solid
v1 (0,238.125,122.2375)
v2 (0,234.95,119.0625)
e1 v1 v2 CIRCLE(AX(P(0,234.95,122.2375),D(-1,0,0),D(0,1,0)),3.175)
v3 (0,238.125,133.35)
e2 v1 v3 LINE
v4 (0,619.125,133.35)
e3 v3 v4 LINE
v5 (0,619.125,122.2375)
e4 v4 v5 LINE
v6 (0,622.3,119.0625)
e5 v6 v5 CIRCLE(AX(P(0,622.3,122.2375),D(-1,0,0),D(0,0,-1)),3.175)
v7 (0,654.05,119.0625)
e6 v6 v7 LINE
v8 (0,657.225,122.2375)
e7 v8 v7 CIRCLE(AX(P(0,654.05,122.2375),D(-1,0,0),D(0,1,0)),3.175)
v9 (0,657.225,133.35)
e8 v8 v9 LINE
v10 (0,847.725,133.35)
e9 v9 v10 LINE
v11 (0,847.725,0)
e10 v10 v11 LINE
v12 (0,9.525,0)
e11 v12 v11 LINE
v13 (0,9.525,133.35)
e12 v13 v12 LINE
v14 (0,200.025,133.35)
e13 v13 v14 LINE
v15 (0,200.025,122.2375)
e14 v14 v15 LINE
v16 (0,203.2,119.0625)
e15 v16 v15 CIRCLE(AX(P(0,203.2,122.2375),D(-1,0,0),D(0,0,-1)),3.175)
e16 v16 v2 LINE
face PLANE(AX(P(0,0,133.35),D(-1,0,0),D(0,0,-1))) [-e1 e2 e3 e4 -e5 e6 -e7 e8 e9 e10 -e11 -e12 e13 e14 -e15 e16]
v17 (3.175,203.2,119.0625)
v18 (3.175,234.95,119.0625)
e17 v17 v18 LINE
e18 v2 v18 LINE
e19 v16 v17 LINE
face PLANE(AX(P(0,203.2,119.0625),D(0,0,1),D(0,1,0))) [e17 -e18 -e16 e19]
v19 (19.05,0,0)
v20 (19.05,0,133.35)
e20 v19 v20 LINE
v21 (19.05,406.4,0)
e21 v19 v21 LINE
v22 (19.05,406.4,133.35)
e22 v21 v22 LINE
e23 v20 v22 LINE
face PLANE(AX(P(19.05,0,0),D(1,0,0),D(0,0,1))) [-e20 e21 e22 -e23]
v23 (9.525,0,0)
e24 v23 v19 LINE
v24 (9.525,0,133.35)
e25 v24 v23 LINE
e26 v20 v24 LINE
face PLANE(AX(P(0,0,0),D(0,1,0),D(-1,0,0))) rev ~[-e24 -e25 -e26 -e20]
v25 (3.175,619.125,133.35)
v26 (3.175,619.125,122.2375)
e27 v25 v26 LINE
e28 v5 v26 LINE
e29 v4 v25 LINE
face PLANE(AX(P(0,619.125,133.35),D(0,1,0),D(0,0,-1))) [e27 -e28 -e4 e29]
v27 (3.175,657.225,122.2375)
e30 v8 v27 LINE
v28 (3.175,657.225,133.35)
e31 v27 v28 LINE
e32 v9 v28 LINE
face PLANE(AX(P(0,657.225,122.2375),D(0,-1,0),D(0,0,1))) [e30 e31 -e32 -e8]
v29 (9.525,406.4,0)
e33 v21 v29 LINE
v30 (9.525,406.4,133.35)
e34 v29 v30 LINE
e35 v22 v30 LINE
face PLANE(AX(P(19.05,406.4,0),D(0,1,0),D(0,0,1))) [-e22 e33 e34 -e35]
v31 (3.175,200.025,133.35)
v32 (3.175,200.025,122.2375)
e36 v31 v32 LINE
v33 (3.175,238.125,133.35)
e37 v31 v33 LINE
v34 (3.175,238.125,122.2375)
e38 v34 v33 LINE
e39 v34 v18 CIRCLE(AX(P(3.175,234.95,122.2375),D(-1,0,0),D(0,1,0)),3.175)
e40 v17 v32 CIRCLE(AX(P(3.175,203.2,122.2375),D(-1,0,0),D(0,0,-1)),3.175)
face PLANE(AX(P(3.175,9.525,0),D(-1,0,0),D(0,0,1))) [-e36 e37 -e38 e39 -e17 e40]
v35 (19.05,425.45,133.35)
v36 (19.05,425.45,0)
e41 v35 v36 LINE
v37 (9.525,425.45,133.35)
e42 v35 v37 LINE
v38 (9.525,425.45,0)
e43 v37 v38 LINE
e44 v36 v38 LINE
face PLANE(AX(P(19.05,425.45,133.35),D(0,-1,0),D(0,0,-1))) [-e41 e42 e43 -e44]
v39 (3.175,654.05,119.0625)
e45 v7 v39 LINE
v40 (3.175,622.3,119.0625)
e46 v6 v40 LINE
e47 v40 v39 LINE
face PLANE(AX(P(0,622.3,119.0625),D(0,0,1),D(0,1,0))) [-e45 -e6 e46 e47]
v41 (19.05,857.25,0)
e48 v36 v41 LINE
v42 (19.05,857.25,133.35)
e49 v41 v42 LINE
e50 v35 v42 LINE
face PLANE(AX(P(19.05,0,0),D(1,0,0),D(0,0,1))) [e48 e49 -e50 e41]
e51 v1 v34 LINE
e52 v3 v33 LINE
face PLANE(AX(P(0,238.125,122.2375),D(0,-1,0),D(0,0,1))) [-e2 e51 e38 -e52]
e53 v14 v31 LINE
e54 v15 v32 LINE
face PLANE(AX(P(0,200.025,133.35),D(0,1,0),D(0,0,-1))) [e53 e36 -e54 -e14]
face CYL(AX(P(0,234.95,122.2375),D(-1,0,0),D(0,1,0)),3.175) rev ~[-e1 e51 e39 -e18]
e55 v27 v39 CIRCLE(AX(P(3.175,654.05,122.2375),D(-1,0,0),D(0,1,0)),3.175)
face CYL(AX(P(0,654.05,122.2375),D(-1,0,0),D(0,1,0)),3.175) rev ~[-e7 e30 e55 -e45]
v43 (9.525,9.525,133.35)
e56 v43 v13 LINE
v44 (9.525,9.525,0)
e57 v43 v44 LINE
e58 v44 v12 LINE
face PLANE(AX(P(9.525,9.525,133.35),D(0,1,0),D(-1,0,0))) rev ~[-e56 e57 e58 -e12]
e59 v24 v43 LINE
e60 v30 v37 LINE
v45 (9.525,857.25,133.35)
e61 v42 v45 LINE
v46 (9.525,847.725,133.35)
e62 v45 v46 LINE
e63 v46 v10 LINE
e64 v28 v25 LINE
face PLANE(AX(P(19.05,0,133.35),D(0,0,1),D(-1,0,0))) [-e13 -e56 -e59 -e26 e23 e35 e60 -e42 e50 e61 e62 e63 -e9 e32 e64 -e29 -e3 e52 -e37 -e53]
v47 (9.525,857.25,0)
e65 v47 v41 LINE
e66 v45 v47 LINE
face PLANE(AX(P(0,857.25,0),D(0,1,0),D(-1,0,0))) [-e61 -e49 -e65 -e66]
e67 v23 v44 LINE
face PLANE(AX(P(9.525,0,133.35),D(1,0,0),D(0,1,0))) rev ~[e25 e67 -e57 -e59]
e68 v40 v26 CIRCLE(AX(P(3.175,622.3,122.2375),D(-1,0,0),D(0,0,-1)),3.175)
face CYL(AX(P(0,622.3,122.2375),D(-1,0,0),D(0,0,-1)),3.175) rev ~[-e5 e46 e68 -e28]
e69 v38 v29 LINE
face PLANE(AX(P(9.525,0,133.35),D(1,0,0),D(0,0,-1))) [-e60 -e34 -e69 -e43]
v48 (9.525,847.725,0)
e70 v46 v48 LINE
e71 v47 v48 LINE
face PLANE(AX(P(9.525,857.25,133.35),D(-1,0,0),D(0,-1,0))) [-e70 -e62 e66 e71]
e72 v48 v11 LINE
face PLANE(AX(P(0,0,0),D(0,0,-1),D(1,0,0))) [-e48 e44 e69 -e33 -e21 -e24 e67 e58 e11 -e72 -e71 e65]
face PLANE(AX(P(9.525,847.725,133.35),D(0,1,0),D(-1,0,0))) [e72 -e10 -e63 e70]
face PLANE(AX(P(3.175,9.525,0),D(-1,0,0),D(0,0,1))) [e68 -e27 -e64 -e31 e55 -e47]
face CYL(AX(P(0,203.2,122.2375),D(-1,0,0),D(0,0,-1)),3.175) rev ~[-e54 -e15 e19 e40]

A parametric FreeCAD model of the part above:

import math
import FreeCAD as App
import Part
import Sketcher

V = App.Vector
Q = App.Units.Quantity


def add_polygon(sketch, points):
    """Adds a closed chain of lines whose ends are joined by coincident constraints."""
    first, n = sketch.GeometryCount, len(points)
    for a, b in zip(points, points[1:] + points[:1]):
        sketch.addGeometry(Part.LineSegment(App.Vector(*a, 0), App.Vector(*b, 0)), False)
    for i in range(n):
        sketch.addConstraint(Sketcher.Constraint("Coincident", first + i, 2, first + (i + 1) % n, 1))

doc = App.newDocument("Part")
params = doc.addObject("Spreadsheet::Sheet", "Params")
for row, (alias, value) in enumerate([
    ("sketch1_width", "0.75 in"),
    ("sketch1_height", "5.25 in"),
    ("pad1_length", "33.75 in"),
    ("sketch2_width", "0.75 in"),
    ("sketch2_height", "5.25 in"),
    ("pocket1_length", "0.375 in"),
    ("sketch3_width", "0.375 in"),
    ("pocket2_length", "5.25 in"),
    ("sketch4_width", "1.5 in"),
    ("sketch4_radius", "0.125 in"),
    ("pocket3_length", "0.125 in"),
], start=1):
    params.set(f"A{row}", alias)
    params.set(f"B{row}", "=" + value)
    params.setAlias(f"B{row}", alias)

body = doc.addObject("PartDesign::Body", "Body")

sketch1 = doc.addObject("Sketcher::SketchObject", "Sketch")
body.addObject(sketch1)
sketch1.AttachmentSupport = (doc.XZ_Plane, [""])
sketch1.MapMode = "FlatFace"
add_polygon(sketch1, [(19, 0), (0, 0), (0, 133), (19, 133)])
sketch1.addConstraint([
    Sketcher.Constraint("Horizontal", 0),
    Sketcher.Constraint("Vertical", 1),
    Sketcher.Constraint("Horizontal", 2),
    Sketcher.Constraint("Vertical", 3),
    Sketcher.Constraint("Coincident", 0, 2, -1, 1),
    Sketcher.Constraint("DistanceX", 0, 2, 0, 1, Q("0.75 in")),
    Sketcher.Constraint("DistanceY", 1, 1, 1, 2, Q("5.25 in")),
])
sketch1.setExpression("Constraints[9]", "Params.sketch1_width")
sketch1.setExpression("Constraints[10]", "Params.sketch1_height")
pad1 = doc.addObject("PartDesign::Pad", "Pad")
body.addObject(pad1)
pad1.Profile = sketch1
pad1.setExpression("Length", "Params.pad1_length")
pad1.Reversed = True

sketch2 = doc.addObject("Sketcher::SketchObject", "Sketch001")
body.addObject(sketch2)
sketch2.AttachmentSupport = (doc.YZ_Plane, [""])
sketch2.MapMode = "FlatFace"
sketch2.AttachmentOffset = App.Placement(V(0, 0, 0.75 * 25.4), App.Rotation())
add_polygon(sketch2, [(425, 0), (425, 133), (406, 133), (406, 0)])
sketch2.addConstraint([
    Sketcher.Constraint("Vertical", 0),
    Sketcher.Constraint("Horizontal", 1),
    Sketcher.Constraint("Vertical", 2),
    Sketcher.Constraint("Horizontal", 3),
    Sketcher.Constraint("PointOnObject", 2, 2, -1),
    Sketcher.Constraint("DistanceX", -1, 1, 1, 2, Q("16 in")),
    Sketcher.Constraint("DistanceX", 1, 2, 1, 1, Q("0.75 in")),
    Sketcher.Constraint("DistanceY", 0, 1, 0, 2, Q("5.25 in")),
])
sketch2.setExpression("Constraints[10]", "Params.sketch2_width")
sketch2.setExpression("Constraints[11]", "Params.sketch2_height")
pocket1 = doc.addObject("PartDesign::Pocket", "Pocket")
body.addObject(pocket1)
pocket1.Profile = sketch2
pocket1.setExpression("Length", "Params.pocket1_length")

sketch3 = doc.addObject("Sketcher::SketchObject", "Sketch002")
body.addObject(sketch3)
sketch3.AttachmentSupport = (doc.XY_Plane, [""])
sketch3.MapMode = "FlatFace"
sketch3.AttachmentOffset = App.Placement(V(0, 0, 5.25 * 25.4), App.Rotation())
add_polygon(sketch3, [(10, 857), (0, 857), (0, 848), (10, 848)])
add_polygon(sketch3, [(0, 10), (0, 0), (10, 0), (10, 10)])
sketch3.addConstraint([
    Sketcher.Constraint("Horizontal", 0),
    Sketcher.Constraint("Vertical", 1),
    Sketcher.Constraint("Horizontal", 2),
    Sketcher.Constraint("Vertical", 3),
    Sketcher.Constraint("Vertical", 4),
    Sketcher.Constraint("Horizontal", 5),
    Sketcher.Constraint("Vertical", 6),
    Sketcher.Constraint("Horizontal", 7),
    Sketcher.Constraint("Coincident", 4, 2, -1, 1),
    Sketcher.Constraint("PointOnObject", 0, 2, -2),
    Sketcher.Constraint("Vertical", 3, 2, 5, 2),
    Sketcher.Constraint("Equal", 7, 1),
    Sketcher.Constraint("Equal", 3, 4),
    Sketcher.Constraint("DistanceX", 0, 2, 0, 1, Q("0.375 in")),
    Sketcher.Constraint("DistanceY", 6, 2, 2, 2, Q("33 in")),
])
sketch3.setExpression("Constraints[21]", "Params.sketch3_width")
pocket2 = doc.addObject("PartDesign::Pocket", "Pocket001")
body.addObject(pocket2)
pocket2.Profile = sketch3
pocket2.setExpression("Length", "Params.pocket2_length")

sketch4 = doc.addObject("Sketcher::SketchObject", "Sketch003")
body.addObject(sketch4)
sketch4.AttachmentSupport = (doc.YZ_Plane, [""])
sketch4.MapMode = "FlatFace"
sketch4.addGeometry([
    Part.LineSegment(V(200, 133.3, 0), V(238.1, 133.3, 0)),
    Part.LineSegment(V(238.1, 133.3, 0), V(238.1, 122.2, 0)),
    Part.ArcOfCircle(Part.Circle(V(234.9, 122.2, 0), V(0, 0, 1), 3.2), math.radians(-90), math.radians(0)),
    Part.LineSegment(V(234.9, 119.1, 0), V(203.2, 119.1, 0)),
    Part.ArcOfCircle(Part.Circle(V(203.2, 122.2, 0), V(0, 0, 1), 3.2), math.radians(180), math.radians(270)),
    Part.LineSegment(V(200, 122.2, 0), V(200, 133.3, 0)),
    Part.LineSegment(V(657.2, 133.3, 0), V(657.2, 122.2, 0)),
    Part.ArcOfCircle(Part.Circle(V(654, 122.2, 0), V(0, 0, 1), 3.2), math.radians(-90), math.radians(0)),
    Part.LineSegment(V(654, 119.1, 0), V(622.3, 119.1, 0)),
    Part.ArcOfCircle(Part.Circle(V(622.3, 122.2, 0), V(0, 0, 1), 3.2), math.radians(180), math.radians(270)),
    Part.LineSegment(V(619.1, 122.2, 0), V(619.1, 133.3, 0)),
    Part.LineSegment(V(619.1, 133.3, 0), V(657.2, 133.3, 0)),
], False)
sketch4.addConstraint([
    Sketcher.Constraint("Coincident", 0, 2, 1, 1),
    Sketcher.Constraint("Tangent", 1, 2, 2, 2),
    Sketcher.Constraint("Tangent", 2, 1, 3, 1),
    Sketcher.Constraint("Tangent", 3, 2, 4, 2),
    Sketcher.Constraint("Tangent", 4, 1, 5, 1),
    Sketcher.Constraint("Coincident", 5, 2, 0, 1),
    Sketcher.Constraint("Tangent", 6, 2, 7, 2),
    Sketcher.Constraint("Tangent", 7, 1, 8, 1),
    Sketcher.Constraint("Tangent", 8, 2, 9, 2),
    Sketcher.Constraint("Tangent", 9, 1, 10, 1),
    Sketcher.Constraint("Coincident", 10, 2, 11, 1),
    Sketcher.Constraint("Coincident", 11, 2, 6, 1),
    Sketcher.Constraint("Horizontal", 0),
    Sketcher.Constraint("Vertical", 1),
    Sketcher.Constraint("Horizontal", 3),
    Sketcher.Constraint("Vertical", 5),
    Sketcher.Constraint("Vertical", 6),
    Sketcher.Constraint("Horizontal", 8),
    Sketcher.Constraint("Vertical", 10),
    Sketcher.Constraint("Horizontal", 11),
    Sketcher.Constraint("Equal", 2, 4),
    Sketcher.Constraint("Equal", 4, 7),
    Sketcher.Constraint("Equal", 7, 9),
    Sketcher.Constraint("Horizontal", 4, 3, 7, 3),
    Sketcher.Constraint("Horizontal", 5, 2, 10, 2),
    Sketcher.Constraint("Equal", 3, 8),
    Sketcher.Constraint("DistanceX", 0, 1, 0, 2, Q("1.5 in")),
    Sketcher.Constraint("Radius", 2, Q("0.125 in")),
    Sketcher.Constraint("DistanceX", -1, 1, 4, 3, Q("8 in")),
    Sketcher.Constraint("DistanceY", 2, 1, 0, 2, Q("0.5625 in")),
    Sketcher.Constraint("DistanceX", -1, 1, 9, 3, Q("24.5 in")),
    Sketcher.Constraint("DistanceY", -1, 1, 0, 2, Q("5.25 in")),
])
sketch4.setExpression("Constraints[26]", "Params.sketch4_width")
sketch4.setExpression("Constraints[27]", "Params.sketch4_radius")
pocket3 = doc.addObject("PartDesign::Pocket", "Pocket002")
body.addObject(pocket3)
pocket3.Profile = sketch4
pocket3.setExpression("Length", "Params.pocket3_length")
pocket3.Reversed = True

doc.recompute()
